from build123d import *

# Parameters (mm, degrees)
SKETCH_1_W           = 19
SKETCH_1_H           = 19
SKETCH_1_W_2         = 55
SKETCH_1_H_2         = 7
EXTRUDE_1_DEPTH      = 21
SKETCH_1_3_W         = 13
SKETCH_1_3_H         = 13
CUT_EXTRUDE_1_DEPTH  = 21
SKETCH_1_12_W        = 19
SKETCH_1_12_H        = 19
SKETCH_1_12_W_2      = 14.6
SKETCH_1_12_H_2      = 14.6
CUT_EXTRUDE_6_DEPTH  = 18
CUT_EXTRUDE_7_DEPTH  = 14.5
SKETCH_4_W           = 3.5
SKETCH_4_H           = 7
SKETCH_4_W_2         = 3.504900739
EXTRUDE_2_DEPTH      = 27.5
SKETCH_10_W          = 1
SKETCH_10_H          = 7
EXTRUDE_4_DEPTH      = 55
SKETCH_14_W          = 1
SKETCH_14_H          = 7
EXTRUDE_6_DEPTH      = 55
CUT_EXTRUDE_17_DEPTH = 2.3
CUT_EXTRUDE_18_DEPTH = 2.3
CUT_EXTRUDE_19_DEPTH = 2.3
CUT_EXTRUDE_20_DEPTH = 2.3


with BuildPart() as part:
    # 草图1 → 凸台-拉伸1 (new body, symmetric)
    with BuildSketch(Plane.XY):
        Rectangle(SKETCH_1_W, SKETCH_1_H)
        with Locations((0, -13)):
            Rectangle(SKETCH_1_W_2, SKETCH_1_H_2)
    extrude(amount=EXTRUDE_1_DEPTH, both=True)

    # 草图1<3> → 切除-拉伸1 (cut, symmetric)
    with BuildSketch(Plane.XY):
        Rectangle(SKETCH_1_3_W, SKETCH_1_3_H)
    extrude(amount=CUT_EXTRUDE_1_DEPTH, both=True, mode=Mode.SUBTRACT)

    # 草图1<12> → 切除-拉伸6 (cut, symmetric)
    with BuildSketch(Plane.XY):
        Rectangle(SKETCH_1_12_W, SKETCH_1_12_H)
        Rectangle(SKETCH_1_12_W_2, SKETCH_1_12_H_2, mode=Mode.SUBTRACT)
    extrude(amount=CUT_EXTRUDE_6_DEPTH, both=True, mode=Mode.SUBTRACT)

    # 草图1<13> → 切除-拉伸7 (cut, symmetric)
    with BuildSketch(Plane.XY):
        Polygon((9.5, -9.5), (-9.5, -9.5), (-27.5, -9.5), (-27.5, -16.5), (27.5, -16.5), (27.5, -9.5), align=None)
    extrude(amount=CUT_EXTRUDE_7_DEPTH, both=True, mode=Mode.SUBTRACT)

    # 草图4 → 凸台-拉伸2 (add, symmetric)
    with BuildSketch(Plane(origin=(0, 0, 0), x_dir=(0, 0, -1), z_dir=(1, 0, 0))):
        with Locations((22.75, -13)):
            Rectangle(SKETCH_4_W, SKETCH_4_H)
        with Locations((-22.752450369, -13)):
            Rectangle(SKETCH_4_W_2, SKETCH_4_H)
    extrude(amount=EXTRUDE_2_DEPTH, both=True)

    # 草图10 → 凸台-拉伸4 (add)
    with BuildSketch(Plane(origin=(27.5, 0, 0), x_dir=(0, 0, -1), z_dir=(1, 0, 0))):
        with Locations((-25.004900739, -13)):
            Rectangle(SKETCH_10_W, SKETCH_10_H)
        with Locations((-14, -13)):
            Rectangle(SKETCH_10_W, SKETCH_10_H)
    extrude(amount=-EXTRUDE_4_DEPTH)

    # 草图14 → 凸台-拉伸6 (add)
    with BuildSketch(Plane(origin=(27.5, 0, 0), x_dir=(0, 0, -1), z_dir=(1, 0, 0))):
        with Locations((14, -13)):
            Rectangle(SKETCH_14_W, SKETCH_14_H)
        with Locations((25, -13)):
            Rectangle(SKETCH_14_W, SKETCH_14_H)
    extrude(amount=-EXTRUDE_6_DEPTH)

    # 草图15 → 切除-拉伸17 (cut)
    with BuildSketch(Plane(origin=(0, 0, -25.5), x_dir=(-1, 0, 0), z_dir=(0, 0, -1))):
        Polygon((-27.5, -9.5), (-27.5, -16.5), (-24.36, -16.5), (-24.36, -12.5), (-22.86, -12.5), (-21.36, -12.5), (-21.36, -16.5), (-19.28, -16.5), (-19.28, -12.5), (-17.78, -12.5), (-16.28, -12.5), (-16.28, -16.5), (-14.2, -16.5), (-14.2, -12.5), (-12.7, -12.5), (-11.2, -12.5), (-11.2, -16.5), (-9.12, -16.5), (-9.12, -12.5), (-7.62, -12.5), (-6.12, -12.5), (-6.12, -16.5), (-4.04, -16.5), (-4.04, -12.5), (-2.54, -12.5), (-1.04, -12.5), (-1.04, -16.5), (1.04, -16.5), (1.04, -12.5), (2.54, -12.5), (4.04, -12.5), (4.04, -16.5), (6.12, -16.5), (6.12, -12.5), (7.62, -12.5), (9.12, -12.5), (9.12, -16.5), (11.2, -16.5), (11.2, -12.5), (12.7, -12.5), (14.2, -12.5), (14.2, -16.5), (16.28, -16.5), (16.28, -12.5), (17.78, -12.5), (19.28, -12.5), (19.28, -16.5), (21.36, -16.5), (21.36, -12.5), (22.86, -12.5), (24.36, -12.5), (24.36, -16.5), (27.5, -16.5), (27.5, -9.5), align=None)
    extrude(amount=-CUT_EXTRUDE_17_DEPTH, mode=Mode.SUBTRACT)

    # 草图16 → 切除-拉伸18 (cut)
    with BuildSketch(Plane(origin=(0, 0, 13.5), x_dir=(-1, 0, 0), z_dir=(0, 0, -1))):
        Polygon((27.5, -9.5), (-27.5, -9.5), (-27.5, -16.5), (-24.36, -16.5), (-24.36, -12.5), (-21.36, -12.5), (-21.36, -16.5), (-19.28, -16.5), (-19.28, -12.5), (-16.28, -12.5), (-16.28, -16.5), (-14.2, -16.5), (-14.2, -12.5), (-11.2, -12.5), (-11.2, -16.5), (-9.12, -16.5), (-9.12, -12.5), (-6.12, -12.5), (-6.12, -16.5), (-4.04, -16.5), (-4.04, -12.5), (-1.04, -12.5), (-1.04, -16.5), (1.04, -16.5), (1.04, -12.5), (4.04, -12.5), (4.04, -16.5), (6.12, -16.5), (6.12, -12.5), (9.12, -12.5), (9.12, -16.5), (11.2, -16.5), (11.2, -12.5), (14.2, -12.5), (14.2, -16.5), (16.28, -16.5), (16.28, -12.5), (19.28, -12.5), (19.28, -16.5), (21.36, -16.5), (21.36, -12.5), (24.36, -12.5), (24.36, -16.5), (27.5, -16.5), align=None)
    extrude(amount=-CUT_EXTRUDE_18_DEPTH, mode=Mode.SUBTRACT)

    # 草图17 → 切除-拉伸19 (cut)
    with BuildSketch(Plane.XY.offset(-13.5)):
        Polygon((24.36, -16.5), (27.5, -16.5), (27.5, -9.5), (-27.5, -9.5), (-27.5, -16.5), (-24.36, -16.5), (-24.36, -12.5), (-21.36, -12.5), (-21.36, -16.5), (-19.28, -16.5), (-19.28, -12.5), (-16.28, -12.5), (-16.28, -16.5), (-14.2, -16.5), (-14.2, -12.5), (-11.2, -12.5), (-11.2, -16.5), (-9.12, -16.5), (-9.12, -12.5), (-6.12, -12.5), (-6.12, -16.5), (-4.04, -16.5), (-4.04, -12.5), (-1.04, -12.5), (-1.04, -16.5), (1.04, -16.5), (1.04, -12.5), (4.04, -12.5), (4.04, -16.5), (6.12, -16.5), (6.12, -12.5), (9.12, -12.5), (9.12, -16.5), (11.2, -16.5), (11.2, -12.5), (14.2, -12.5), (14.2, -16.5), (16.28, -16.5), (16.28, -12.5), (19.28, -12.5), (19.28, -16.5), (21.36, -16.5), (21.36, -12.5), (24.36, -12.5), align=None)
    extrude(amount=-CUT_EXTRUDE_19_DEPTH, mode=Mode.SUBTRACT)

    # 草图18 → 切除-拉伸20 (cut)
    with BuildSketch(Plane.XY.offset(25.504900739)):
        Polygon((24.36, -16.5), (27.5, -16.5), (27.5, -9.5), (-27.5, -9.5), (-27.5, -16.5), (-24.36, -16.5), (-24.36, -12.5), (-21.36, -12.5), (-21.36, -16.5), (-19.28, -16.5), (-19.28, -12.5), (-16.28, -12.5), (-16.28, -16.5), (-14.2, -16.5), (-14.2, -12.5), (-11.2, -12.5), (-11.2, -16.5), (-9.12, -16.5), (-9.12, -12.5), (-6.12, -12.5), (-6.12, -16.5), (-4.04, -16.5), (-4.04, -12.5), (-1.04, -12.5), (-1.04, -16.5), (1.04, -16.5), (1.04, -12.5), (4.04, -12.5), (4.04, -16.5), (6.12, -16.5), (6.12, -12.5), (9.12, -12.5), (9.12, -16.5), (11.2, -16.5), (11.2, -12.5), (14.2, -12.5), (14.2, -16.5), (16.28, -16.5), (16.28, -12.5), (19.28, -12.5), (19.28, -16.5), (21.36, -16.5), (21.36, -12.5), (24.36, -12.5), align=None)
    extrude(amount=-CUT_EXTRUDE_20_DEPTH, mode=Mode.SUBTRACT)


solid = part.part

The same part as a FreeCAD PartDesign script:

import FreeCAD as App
import Part
import Sketcher
Q = App.Units.Quantity


def add_polygon(sketch, points):
    """Adds a closed chain of lines whose ends are joined by coincident constraints."""
    first, n = sketch.GeometryCount, len(points)
    for a, b in zip(points, points[1:] + points[:1]):
        sketch.addGeometry(Part.LineSegment(App.Vector(*a, 0), App.Vector(*b, 0)), False)
    for i in range(n):
        sketch.addConstraint(Sketcher.Constraint("Coincident", first + i, 2, first + (i + 1) % n, 1))

doc = App.newDocument("Part")
body = doc.addObject("PartDesign::Body", "Body")

# Sketch on XY plane
sketch1 = body.newObject("Sketcher::SketchObject", "Sketch")
sketch1.AttachmentSupport = (doc.getObject("XY_Plane"), [""])
sketch1.MapMode = "FlatFace"
add_polygon(sketch1, [(-10, 10), (-10, -10), (-28, -10), (-28, -16), (28, -16), (28, -10), (10, -10), (10, 10)])  # lines 0-7
sketch1.addConstraint(Sketcher.Constraint("Vertical", 0))
sketch1.addConstraint(Sketcher.Constraint("Horizontal", 1))
sketch1.addConstraint(Sketcher.Constraint("Vertical", 2))
sketch1.addConstraint(Sketcher.Constraint("Horizontal", 3))
sketch1.addConstraint(Sketcher.Constraint("Vertical", 4))
sketch1.addConstraint(Sketcher.Constraint("Horizontal", 5))
sketch1.addConstraint(Sketcher.Constraint("Vertical", 6))
sketch1.addConstraint(Sketcher.Constraint("Horizontal", 7))
sketch1.addConstraint(Sketcher.Constraint("Symmetric", 0, 2, 6, 2, -1, 1))
sketch1.addConstraint(Sketcher.Constraint("Symmetric", 1, 2, 4, 2, -2))
sketch1.addConstraint(Sketcher.Constraint("Equal", 7, 0))
sketch1.addConstraint(Sketcher.Constraint("DistanceX", 1, 2, 1, 1, Q("18 mm")))
sketch1.addConstraint(Sketcher.Constraint("DistanceX", 3, 1, 3, 2, Q("55 mm")))
sketch1.addConstraint(Sketcher.Constraint("DistanceY", 2, 2, 2, 1, Q("7 mm")))
pad1 = body.newObject("PartDesign::Pad", "Pad")
pad1.Profile = sketch1
pad1.Length = 42
pad1.Midplane = True

# Sketch on XY plane
sketch2 = body.newObject("Sketcher::SketchObject", "Sketch001")
sketch2.AttachmentSupport = (doc.getObject("XY_Plane"), [""])
sketch2.MapMode = "FlatFace"
add_polygon(sketch2, [(-6, 6), (-6, -6), (6, -6), (6, 6)])  # lines 0-3
sketch2.addConstraint(Sketcher.Constraint("Vertical", 0))
sketch2.addConstraint(Sketcher.Constraint("Horizontal", 1))
sketch2.addConstraint(Sketcher.Constraint("Vertical", 2))
sketch2.addConstraint(Sketcher.Constraint("Horizontal", 3))
sketch2.addConstraint(Sketcher.Constraint("Symmetric", 0, 2, 2, 2, -1, 1))
sketch2.addConstraint(Sketcher.Constraint("Equal", 3, 0))
sketch2.addConstraint(Sketcher.Constraint("DistanceX", 1, 1, 1, 2, Q("13 mm")))
pocket1 = body.newObject("PartDesign::Pocket", "Pocket")
pocket1.Profile = sketch2
pocket1.Length = 42
pocket1.Midplane = True

# Sketch on XY plane
sketch3 = body.newObject("Sketcher::SketchObject", "Sketch002")
sketch3.AttachmentSupport = (doc.getObject("XY_Plane"), [""])
sketch3.MapMode = "FlatFace"
add_polygon(sketch3, [(-10, 10), (-10, -10), (10, -10), (10, 10)])  # lines 0-3
add_polygon(sketch3, [(7, -7), (-7, -7), (-7, 7), (7, 7)])  # lines 4-7
sketch3.addConstraint(Sketcher.Constraint("Vertical", 0))
sketch3.addConstraint(Sketcher.Constraint("Horizontal", 1))
sketch3.addConstraint(Sketcher.Constraint("Vertical", 2))
sketch3.addConstraint(Sketcher.Constraint("Horizontal", 3))
sketch3.addConstraint(Sketcher.Constraint("Horizontal", 4))
sketch3.addConstraint(Sketcher.Constraint("Vertical", 5))
sketch3.addConstraint(Sketcher.Constraint("Horizontal", 6))
sketch3.addConstraint(Sketcher.Constraint("Vertical", 7))
sketch3.addConstraint(Sketcher.Constraint("Symmetric", 0, 2, 2, 2, -1, 1))
sketch3.addConstraint(Sketcher.Constraint("Symmetric", 4, 2, 6, 2, -1, 1))
sketch3.addConstraint(Sketcher.Constraint("Equal", 3, 0))
sketch3.addConstraint(Sketcher.Constraint("Equal", 6, 5))
sketch3.addConstraint(Sketcher.Constraint("DistanceX", 1, 1, 1, 2, Q("19 mm")))
sketch3.addConstraint(Sketcher.Constraint("DistanceX", 4, 2, 4, 1, Q("14.6 mm")))
pocket2 = body.newObject("PartDesign::Pocket", "Pocket001")
pocket2.Profile = sketch3
pocket2.Length = 36
pocket2.Midplane = True

# Sketch on XY plane
sketch4 = body.newObject("Sketcher::SketchObject", "Sketch003")
sketch4.AttachmentSupport = (doc.getObject("XY_Plane"), [""])
sketch4.MapMode = "FlatFace"
add_polygon(sketch4, [(-28, -10), (-28, -16), (28, -16), (28, -10)])  # lines 0-3
sketch4.addConstraint(Sketcher.Constraint("Vertical", 0))
sketch4.addConstraint(Sketcher.Constraint("Horizontal", 1))
sketch4.addConstraint(Sketcher.Constraint("Vertical", 2))
sketch4.addConstraint(Sketcher.Constraint("Horizontal", 3))
sketch4.addConstraint(Sketcher.Constraint("DistanceX", 1, 1, 1, 2, Q("55 mm")))
sketch4.addConstraint(Sketcher.Constraint("DistanceY", 0, 2, 0, 1, Q("7 mm")))
sketch4.addConstraint(Sketcher.Constraint("DistanceX", 0, 2, -1, 1, Q("27.5 mm")))
sketch4.addConstraint(Sketcher.Constraint("DistanceY", 0, 2, -1, 1, Q("16.5 mm")))
pocket3 = body.newObject("PartDesign::Pocket", "Pocket002")
pocket3.Profile = sketch4
pocket3.Length = 29
pocket3.Midplane = True

# Sketch on YZ plane
sketch5 = body.newObject("Sketcher::SketchObject", "Sketch004")
sketch5.AttachmentSupport = (doc.getObject("YZ_Plane"), [""])
sketch5.MapMode = "FlatFace"
add_polygon(sketch5, [(-9.5, -21), (-16.5, -21), (-16.5, -24.5), (-9.5, -24.5)])  # lines 0-3
add_polygon(sketch5, [(-9.5, 24.5), (-16.5, 24.5), (-16.5, 21), (-9.5, 21)])  # lines 4-7
sketch5.addConstraint(Sketcher.Constraint("Horizontal", 0))
sketch5.addConstraint(Sketcher.Constraint("Vertical", 1))
sketch5.addConstraint(Sketcher.Constraint("Horizontal", 2))
sketch5.addConstraint(Sketcher.Constraint("Vertical", 3))
sketch5.addConstraint(Sketcher.Constraint("Horizontal", 4))
sketch5.addConstraint(Sketcher.Constraint("Vertical", 5))
sketch5.addConstraint(Sketcher.Constraint("Horizontal", 6))
sketch5.addConstraint(Sketcher.Constraint("Vertical", 7))
sketch5.addConstraint(Sketcher.Constraint("Symmetric", 0, 2, 5, 2, -1))
sketch5.addConstraint(Sketcher.Constraint("Vertical", 3, 2, 6, 2))
sketch5.addConstraint(Sketcher.Constraint("DistanceX", 0, 2, 0, 1, Q("7 mm")))
sketch5.addConstraint(Sketcher.Constraint("DistanceY", 1, 2, 1, 1, Q("3.5 mm")))
sketch5.addConstraint(Sketcher.Constraint("DistanceY", 0, 2, -1, 1, Q("21 mm")))
sketch5.addConstraint(Sketcher.Constraint("DistanceX", 0, 2, -1, 1, Q("16.5 mm")))
sketch5.addConstraint(Sketcher.Constraint("DistanceY", 5, 2, 5, 1, Q("3.504901 mm")))
pad2 = body.newObject("PartDesign::Pad", "Pad001")
pad2.Profile = sketch5
pad2.Length = 55
pad2.Midplane = True

# Sketch on YZ plane
sketch6 = body.newObject("Sketcher::SketchObject", "Sketch005")
sketch6.AttachmentSupport = (doc.getObject("YZ_Plane"), [""])
sketch6.MapMode = "FlatFace"
sketch6.AttachmentOffset = App.Placement(App.Vector(0, 0, 27.5), App.Rotation())
add_polygon(sketch6, [(-9.5, 25.5), (-16.5, 25.5), (-16.5, 24.5), (-9.5, 24.5)])  # lines 0-3
add_polygon(sketch6, [(-9.5, 14.5), (-16.5, 14.5), (-16.5, 13.5), (-9.5, 13.5)])  # lines 4-7
sketch6.addConstraint(Sketcher.Constraint("Horizontal", 0))
sketch6.addConstraint(Sketcher.Constraint("Vertical", 1))
sketch6.addConstraint(Sketcher.Constraint("Horizontal", 2))
sketch6.addConstraint(Sketcher.Constraint("Vertical", 3))
sketch6.addConstraint(Sketcher.Constraint("Horizontal", 4))
sketch6.addConstraint(Sketcher.Constraint("Vertical", 5))
sketch6.addConstraint(Sketcher.Constraint("Horizontal", 6))
sketch6.addConstraint(Sketcher.Constraint("Vertical", 7))
sketch6.addConstraint(Sketcher.Constraint("Vertical", 1, 2, 4, 2))
sketch6.addConstraint(Sketcher.Constraint("Vertical", 3, 2, 6, 2))
sketch6.addConstraint(Sketcher.Constraint("Equal", 3, 5))
sketch6.addConstraint(Sketcher.Constraint("DistanceX", 0, 2, 0, 1, Q("7 mm")))
sketch6.addConstraint(Sketcher.Constraint("DistanceY", 1, 2, 1, 1, Q("1 mm")))
sketch6.addConstraint(Sketcher.Constraint("DistanceX", 0, 2, -1, 1, Q("16.5 mm")))
sketch6.addConstraint(Sketcher.Constraint("DistanceY", -1, 1, 4, 2, Q("14.5 mm")))
sketch6.addConstraint(Sketcher.Constraint("DistanceY", -1, 1, 0, 2, Q("25.504901 mm")))
pad3 = body.newObject("PartDesign::Pad", "Pad002")
pad3.Profile = sketch6
pad3.Length = 55
pad3.Reversed = True

# Sketch on YZ plane
sketch7 = body.newObject("Sketcher::SketchObject", "Sketch006")
sketch7.AttachmentSupport = (doc.getObject("YZ_Plane"), [""])
sketch7.MapMode = "FlatFace"
sketch7.AttachmentOffset = App.Placement(App.Vector(0, 0, 27.5), App.Rotation())
add_polygon(sketch7, [(-9.5, -13.5), (-16.5, -13.5), (-16.5, -14.5), (-9.5, -14.5)])  # lines 0-3
add_polygon(sketch7, [(-9.5, -24.5), (-16.5, -24.5), (-16.5, -25.5), (-9.5, -25.5)])  # lines 4-7
sketch7.addConstraint(Sketcher.Constraint("Horizontal", 0))
sketch7.addConstraint(Sketcher.Constraint("Vertical", 1))
sketch7.addConstraint(Sketcher.Constraint("Horizontal", 2))
sketch7.addConstraint(Sketcher.Constraint("Vertical", 3))
sketch7.addConstraint(Sketcher.Constraint("Horizontal", 4))
sketch7.addConstraint(Sketcher.Constraint("Vertical", 5))
sketch7.addConstraint(Sketcher.Constraint("Horizontal", 6))
sketch7.addConstraint(Sketcher.Constraint("Vertical", 7))
sketch7.addConstraint(Sketcher.Constraint("Vertical", 1, 2, 4, 2))
sketch7.addConstraint(Sketcher.Constraint("Vertical", 3, 2, 6, 2))
sketch7.addConstraint(Sketcher.Constraint("Equal", 3, 5))
sketch7.addConstraint(Sketcher.Constraint("DistanceX", 0, 2, 0, 1, Q("7 mm")))
sketch7.addConstraint(Sketcher.Constraint("DistanceY", 1, 2, 1, 1, Q("1 mm")))
sketch7.addConstraint(Sketcher.Constraint("DistanceY", 4, 2, 1, 2, Q("10 mm")))
sketch7.addConstraint(Sketcher.Constraint("DistanceX", 0, 2, -1, 1, Q("16.5 mm")))
sketch7.addConstraint(Sketcher.Constraint("DistanceY", 0, 2, -1, 1, Q("13.5 mm")))
pad4 = body.newObject("PartDesign::Pad", "Pad003")
pad4.Profile = sketch7
pad4.Length = 55
pad4.Reversed = True

# Sketch on XY plane
sketch8 = body.newObject("Sketcher::SketchObject", "Sketch007")
sketch8.AttachmentSupport = (doc.getObject("XY_Plane"), [""])
sketch8.MapMode = "FlatFace"
sketch8.AttachmentOffset = App.Placement(App.Vector(0, 0, -25.5), App.Rotation())
add_polygon(sketch8, [(27.5, -9.5), (27.5, -16.5), (24.4, -16.5), (24.4, -12.5), (21.4, -12.5), (21.4, -16.5), (19.3, -16.5), (19.3, -12.5), (16.3, -12.5), (16.3, -16.5), (14.2, -16.5), (14.2, -12.5), (11.2, -12.5), (11.2, -16.5), (9.1, -16.5), (9.1, -12.5), (6.1, -12.5), (6.1, -16.5), (4, -16.5), (4, -12.5), (1, -12.5), (1, -16.5), (-1, -16.5), (-1, -12.5), (-4, -12.5), (-4, -16.5), (-6.1, -16.5), (-6.1, -12.5), (-9.1, -12.5), (-9.1, -16.5), (-11.2, -16.5), (-11.2, -12.5), (-14.2, -12.5), (-14.2, -16.5), (-16.3, -16.5), (-16.3, -12.5), (-19.3, -12.5), (-19.3, -16.5), (-21.4, -16.5), (-21.4, -12.5), (-24.4, -12.5), (-24.4, -16.5), (-27.5, -16.5), (-27.5, -9.5)])  # lines 0-43
sketch8.addConstraint(Sketcher.Constraint("Vertical", 0))
sketch8.addConstraint(Sketcher.Constraint("Horizontal", 1))
sketch8.addConstraint(Sketcher.Constraint("Vertical", 2))
sketch8.addConstraint(Sketcher.Constraint("Horizontal", 3))
sketch8.addConstraint(Sketcher.Constraint("Vertical", 4))
sketch8.addConstraint(Sketcher.Constraint("Horizontal", 5))
sketch8.addConstraint(Sketcher.Constraint("Vertical", 6))
sketch8.addConstraint(Sketcher.Constraint("Horizontal", 7))
sketch8.addConstraint(Sketcher.Constraint("Vertical", 8))
sketch8.addConstraint(Sketcher.Constraint("Horizontal", 9))
sketch8.addConstraint(Sketcher.Constraint("Vertical", 10))
sketch8.addConstraint(Sketcher.Constraint("Horizontal", 11))
sketch8.addConstraint(Sketcher.Constraint("Vertical", 12))
sketch8.addConstraint(Sketcher.Constraint("Horizontal", 13))
sketch8.addConstraint(Sketcher.Constraint("Vertical", 14))
sketch8.addConstraint(Sketcher.Constraint("Horizontal", 15))
sketch8.addConstraint(Sketcher.Constraint("Vertical", 16))
sketch8.addConstraint(Sketcher.Constraint("Horizontal", 17))
sketch8.addConstraint(Sketcher.Constraint("Vertical", 18))
sketch8.addConstraint(Sketcher.Constraint("Horizontal", 19))
sketch8.addConstraint(Sketcher.Constraint("Vertical", 20))
sketch8.addConstraint(Sketcher.Constraint("Horizontal", 21))
sketch8.addConstraint(Sketcher.Constraint("Vertical", 22))
sketch8.addConstraint(Sketcher.Constraint("Horizontal", 23))
sketch8.addConstraint(Sketcher.Constraint("Vertical", 24))
sketch8.addConstraint(Sketcher.Constraint("Horizontal", 25))
sketch8.addConstraint(Sketcher.Constraint("Vertical", 26))
sketch8.addConstraint(Sketcher.Constraint("Horizontal", 27))
sketch8.addConstraint(Sketcher.Constraint("Vertical", 28))
sketch8.addConstraint(Sketcher.Constraint("Horizontal", 29))
sketch8.addConstraint(Sketcher.Constraint("Vertical", 30))
sketch8.addConstraint(Sketcher.Constraint("Horizontal", 31))
sketch8.addConstraint(Sketcher.Constraint("Vertical", 32))
sketch8.addConstraint(Sketcher.Constraint("Horizontal", 33))
sketch8.addConstraint(Sketcher.Constraint("Vertical", 34))
sketch8.addConstraint(Sketcher.Constraint("Horizontal", 35))
sketch8.addConstraint(Sketcher.Constraint("Vertical", 36))
sketch8.addConstraint(Sketcher.Constraint("Horizontal", 37))
sketch8.addConstraint(Sketcher.Constraint("Vertical", 38))
sketch8.addConstraint(Sketcher.Constraint("Horizontal", 39))
sketch8.addConstraint(Sketcher.Constraint("Vertical", 40))
sketch8.addConstraint(Sketcher.Constraint("Horizontal", 41))
sketch8.addConstraint(Sketcher.Constraint("Vertical", 42))
sketch8.addConstraint(Sketcher.Constraint("Horizontal", 43))
sketch8.addConstraint(Sketcher.Constraint("Symmetric", 19, 2, 22, 2, -2))
sketch8.addConstraint(Sketcher.Constraint("Symmetric", 17, 2, 24, 2, -2))
sketch8.addConstraint(Sketcher.Constraint("Symmetric", 15, 2, 26, 2, -2))
sketch8.addConstraint(Sketcher.Constraint("Symmetric", 13, 2, 28, 2, -2))
sketch8.addConstraint(Sketcher.Constraint("Symmetric", 11, 2, 30, 2, -2))
sketch8.addConstraint(Sketcher.Constraint("Symmetric", 9, 2, 32, 2, -2))
sketch8.addConstraint(Sketcher.Constraint("Symmetric", 7, 2, 34, 2, -2))
sketch8.addConstraint(Sketcher.Constraint("Symmetric", 5, 2, 36, 2, -2))
sketch8.addConstraint(Sketcher.Constraint("Symmetric", 3, 2, 38, 2, -2))
sketch8.addConstraint(Sketcher.Constraint("Symmetric", 1, 2, 40, 2, -2))
sketch8.addConstraint(Sketcher.Constraint("Horizontal", 1, 2, 4, 2))
sketch8.addConstraint(Sketcher.Constraint("Horizontal", 3, 2, 6, 2))
sketch8.addConstraint(Sketcher.Constraint("Horizontal", 5, 2, 8, 2))
sketch8.addConstraint(Sketcher.Constraint("Horizontal", 7, 2, 10, 2))
sketch8.addConstraint(Sketcher.Constraint("Horizontal", 9, 2, 12, 2))
sketch8.addConstraint(Sketcher.Constraint("Horizontal", 11, 2, 14, 2))
sketch8.addConstraint(Sketcher.Constraint("Horizontal", 13, 2, 16, 2))
sketch8.addConstraint(Sketcher.Constraint("Horizontal", 15, 2, 18, 2))
sketch8.addConstraint(Sketcher.Constraint("Horizontal", 17, 2, 20, 2))
sketch8.addConstraint(Sketcher.Constraint("Equal", 3, 7))
sketch8.addConstraint(Sketcher.Constraint("Equal", 5, 9))
sketch8.addConstraint(Sketcher.Constraint("Equal", 7, 11))
sketch8.addConstraint(Sketcher.Constraint("Equal", 9, 13))
sketch8.addConstraint(Sketcher.Constraint("Equal", 11, 15))
sketch8.addConstraint(Sketcher.Constraint("Equal", 13, 17))
sketch8.addConstraint(Sketcher.Constraint("Equal", 15, 19))
sketch8.addConstraint(Sketcher.Constraint("Equal", 17, 21))
sketch8.addConstraint(Sketcher.Constraint("Equal", 1, 41))
sketch8.addConstraint(Sketcher.Constraint("DistanceX", 3, 2, 3, 1, Q("3 mm")))
sketch8.addConstraint(Sketcher.Constraint("DistanceX", 43, 1, 43, 2, Q("55 mm")))
sketch8.addConstraint(Sketcher.Constraint("DistanceY", 0, 2, 0, 1, Q("7 mm")))
sketch8.addConstraint(Sketcher.Constraint("DistanceY", 2, 1, 2, 2, Q("4 mm")))
sketch8.addConstraint(Sketcher.Constraint("DistanceX", 1, 2, 1, 1, Q("3.14 mm")))
sketch8.addConstraint(Sketcher.Constraint("DistanceY", 0, 2, -1, 1, Q("16.5 mm")))
pocket4 = body.newObject("PartDesign::Pocket", "Pocket003")
pocket4.Profile = sketch8
pocket4.Length = 2.3
pocket4.Reversed = True

# Sketch on XY plane
sketch9 = body.newObject("Sketcher::SketchObject", "Sketch008")
sketch9.AttachmentSupport = (doc.getObject("XY_Plane"), [""])
sketch9.MapMode = "FlatFace"
sketch9.AttachmentOffset = App.Placement(App.Vector(0, 0, 13.5), App.Rotation())
add_polygon(sketch9, [(-27.5, -9.5), (27.5, -9.5), (27.5, -16.5), (24.4, -16.5), (24.4, -12.5), (21.4, -12.5), (21.4, -16.5), (19.3, -16.5), (19.3, -12.5), (16.3, -12.5), (16.3, -16.5), (14.2, -16.5), (14.2, -12.5), (11.2, -12.5), (11.2, -16.5), (9.1, -16.5), (9.1, -12.5), (6.1, -12.5), (6.1, -16.5), (4, -16.5), (4, -12.5), (1, -12.5), (1, -16.5), (-1, -16.5), (-1, -12.5), (-4, -12.5), (-4, -16.5), (-6.1, -16.5), (-6.1, -12.5), (-9.1, -12.5), (-9.1, -16.5), (-11.2, -16.5), (-11.2, -12.5), (-14.2, -12.5), (-14.2, -16.5), (-16.3, -16.5), (-16.3, -12.5), (-19.3, -12.5), (-19.3, -16.5), (-21.4, -16.5), (-21.4, -12.5), (-24.4, -12.5), (-24.4, -16.5), (-27.5, -16.5)])  # lines 0-43
sketch9.addConstraint(Sketcher.Constraint("Horizontal", 0))
sketch9.addConstraint(Sketcher.Constraint("Vertical", 1))
sketch9.addConstraint(Sketcher.Constraint("Horizontal", 2))
sketch9.addConstraint(Sketcher.Constraint("Vertical", 3))
sketch9.addConstraint(Sketcher.Constraint("Horizontal", 4))
sketch9.addConstraint(Sketcher.Constraint("Vertical", 5))
sketch9.addConstraint(Sketcher.Constraint("Horizontal", 6))
sketch9.addConstraint(Sketcher.Constraint("Vertical", 7))
sketch9.addConstraint(Sketcher.Constraint("Horizontal", 8))
sketch9.addConstraint(Sketcher.Constraint("Vertical", 9))
sketch9.addConstraint(Sketcher.Constraint("Horizontal", 10))
sketch9.addConstraint(Sketcher.Constraint("Vertical", 11))
sketch9.addConstraint(Sketcher.Constraint("Horizontal", 12))
sketch9.addConstraint(Sketcher.Constraint("Vertical", 13))
sketch9.addConstraint(Sketcher.Constraint("Horizontal", 14))
sketch9.addConstraint(Sketcher.Constraint("Vertical", 15))
sketch9.addConstraint(Sketcher.Constraint("Horizontal", 16))
sketch9.addConstraint(Sketcher.Constraint("Vertical", 17))
sketch9.addConstraint(Sketcher.Constraint("Horizontal", 18))
sketch9.addConstraint(Sketcher.Constraint("Vertical", 19))
sketch9.addConstraint(Sketcher.Constraint("Horizontal", 20))
sketch9.addConstraint(Sketcher.Constraint("Vertical", 21))
sketch9.addConstraint(Sketcher.Constraint("Horizontal", 22))
sketch9.addConstraint(Sketcher.Constraint("Vertical", 23))
sketch9.addConstraint(Sketcher.Constraint("Horizontal", 24))
sketch9.addConstraint(Sketcher.Constraint("Vertical", 25))
sketch9.addConstraint(Sketcher.Constraint("Horizontal", 26))
sketch9.addConstraint(Sketcher.Constraint("Vertical", 27))
sketch9.addConstraint(Sketcher.Constraint("Horizontal", 28))
sketch9.addConstraint(Sketcher.Constraint("Vertical", 29))
sketch9.addConstraint(Sketcher.Constraint("Horizontal", 30))
sketch9.addConstraint(Sketcher.Constraint("Vertical", 31))
sketch9.addConstraint(Sketcher.Constraint("Horizontal", 32))
sketch9.addConstraint(Sketcher.Constraint("Vertical", 33))
sketch9.addConstraint(Sketcher.Constraint("Horizontal", 34))
sketch9.addConstraint(Sketcher.Constraint("Vertical", 35))
sketch9.addConstraint(Sketcher.Constraint("Horizontal", 36))
sketch9.addConstraint(Sketcher.Constraint("Vertical", 37))
sketch9.addConstraint(Sketcher.Constraint("Horizontal", 38))
sketch9.addConstraint(Sketcher.Constraint("Vertical", 39))
sketch9.addConstraint(Sketcher.Constraint("Horizontal", 40))
sketch9.addConstraint(Sketcher.Constraint("Vertical", 41))
sketch9.addConstraint(Sketcher.Constraint("Horizontal", 42))
sketch9.addConstraint(Sketcher.Constraint("Vertical", 43))
sketch9.addConstraint(Sketcher.Constraint("Symmetric", 20, 2, 23, 2, -2))
sketch9.addConstraint(Sketcher.Constraint("Symmetric", 18, 2, 25, 2, -2))
sketch9.addConstraint(Sketcher.Constraint("Symmetric", 16, 2, 27, 2, -2))
sketch9.addConstraint(Sketcher.Constraint("Symmetric", 14, 2, 29, 2, -2))
sketch9.addConstraint(Sketcher.Constraint("Symmetric", 12, 2, 31, 2, -2))
sketch9.addConstraint(Sketcher.Constraint("Symmetric", 10, 2, 33, 2, -2))
sketch9.addConstraint(Sketcher.Constraint("Symmetric", 8, 2, 35, 2, -2))
sketch9.addConstraint(Sketcher.Constraint("Symmetric", 6, 2, 37, 2, -2))
sketch9.addConstraint(Sketcher.Constraint("Symmetric", 4, 2, 39, 2, -2))
sketch9.addConstraint(Sketcher.Constraint("Symmetric", 2, 2, 41, 2, -2))
sketch9.addConstraint(Sketcher.Constraint("Horizontal", 2, 2, 5, 2))
sketch9.addConstraint(Sketcher.Constraint("Horizontal", 4, 2, 7, 2))
sketch9.addConstraint(Sketcher.Constraint("Horizontal", 6, 2, 9, 2))
sketch9.addConstraint(Sketcher.Constraint("Horizontal", 8, 2, 11, 2))
sketch9.addConstraint(Sketcher.Constraint("Horizontal", 10, 2, 13, 2))
sketch9.addConstraint(Sketcher.Constraint("Horizontal", 12, 2, 15, 2))
sketch9.addConstraint(Sketcher.Constraint("Horizontal", 14, 2, 17, 2))
sketch9.addConstraint(Sketcher.Constraint("Horizontal", 16, 2, 19, 2))
sketch9.addConstraint(Sketcher.Constraint("Horizontal", 18, 2, 21, 2))
sketch9.addConstraint(Sketcher.Constraint("Equal", 4, 8))
sketch9.addConstraint(Sketcher.Constraint("Equal", 6, 10))
sketch9.addConstraint(Sketcher.Constraint("Equal", 8, 12))
sketch9.addConstraint(Sketcher.Constraint("Equal", 10, 14))
sketch9.addConstraint(Sketcher.Constraint("Equal", 12, 16))
sketch9.addConstraint(Sketcher.Constraint("Equal", 14, 18))
sketch9.addConstraint(Sketcher.Constraint("Equal", 16, 20))
sketch9.addConstraint(Sketcher.Constraint("Equal", 18, 22))
sketch9.addConstraint(Sketcher.Constraint("Equal", 2, 42))
sketch9.addConstraint(Sketcher.Constraint("DistanceX", 0, 1, 0, 2, Q("55 mm")))
sketch9.addConstraint(Sketcher.Constraint("DistanceX", 4, 2, 4, 1, Q("3 mm")))
sketch9.addConstraint(Sketcher.Constraint("DistanceY", 1, 2, 1, 1, Q("7 mm")))
sketch9.addConstraint(Sketcher.Constraint("DistanceY", 3, 1, 3, 2, Q("4 mm")))
sketch9.addConstraint(Sketcher.Constraint("DistanceX", 2, 2, 2, 1, Q("3.14 mm")))
sketch9.addConstraint(Sketcher.Constraint("DistanceY", 0, 2, -1, 1, Q("9.5 mm")))
pocket5 = body.newObject("PartDesign::Pocket", "Pocket004")
pocket5.Profile = sketch9
pocket5.Length = 2.3
pocket5.Reversed = True

# Sketch on XY plane
sketch10 = body.newObject("Sketcher::SketchObject", "Sketch009")
sketch10.AttachmentSupport = (doc.getObject("XY_Plane"), [""])
sketch10.MapMode = "FlatFace"
sketch10.AttachmentOffset = App.Placement(App.Vector(0, 0, -13.5), App.Rotation())
add_polygon(sketch10, [(24.4, -16.5), (27.5, -16.5), (27.5, -9.5), (-27.5, -9.5), (-27.5, -16.5), (-24.4, -16.5), (-24.4, -12.5), (-21.4, -12.5), (-21.4, -16.5), (-19.3, -16.5), (-19.3, -12.5), (-16.3, -12.5), (-16.3, -16.5), (-14.2, -16.5), (-14.2, -12.5), (-11.2, -12.5), (-11.2, -16.5), (-9.1, -16.5), (-9.1, -12.5), (-6.1, -12.5), (-6.1, -16.5), (-4, -16.5), (-4, -12.5), (-1, -12.5), (-1, -16.5), (1, -16.5), (1, -12.5), (4, -12.5), (4, -16.5), (6.1, -16.5), (6.1, -12.5), (9.1, -12.5), (9.1, -16.5), (11.2, -16.5), (11.2, -12.5), (14.2, -12.5), (14.2, -16.5), (16.3, -16.5), (16.3, -12.5), (19.3, -12.5), (19.3, -16.5), (21.4, -16.5), (21.4, -12.5), (24.4, -12.5)])  # lines 0-43
sketch10.addConstraint(Sketcher.Constraint("Horizontal", 0))
sketch10.addConstraint(Sketcher.Constraint("Vertical", 1))
sketch10.addConstraint(Sketcher.Constraint("Horizontal", 2))
sketch10.addConstraint(Sketcher.Constraint("Vertical", 3))
sketch10.addConstraint(Sketcher.Constraint("Horizontal", 4))
sketch10.addConstraint(Sketcher.Constraint("Vertical", 5))
sketch10.addConstraint(Sketcher.Constraint("Horizontal", 6))
sketch10.addConstraint(Sketcher.Constraint("Vertical", 7))
sketch10.addConstraint(Sketcher.Constraint("Horizontal", 8))
sketch10.addConstraint(Sketcher.Constraint("Vertical", 9))
sketch10.addConstraint(Sketcher.Constraint("Horizontal", 10))
sketch10.addConstraint(Sketcher.Constraint("Vertical", 11))
sketch10.addConstraint(Sketcher.Constraint("Horizontal", 12))
sketch10.addConstraint(Sketcher.Constraint("Vertical", 13))
sketch10.addConstraint(Sketcher.Constraint("Horizontal", 14))
sketch10.addConstraint(Sketcher.Constraint("Vertical", 15))
sketch10.addConstraint(Sketcher.Constraint("Horizontal", 16))
sketch10.addConstraint(Sketcher.Constraint("Vertical", 17))
sketch10.addConstraint(Sketcher.Constraint("Horizontal", 18))
sketch10.addConstraint(Sketcher.Constraint("Vertical", 19))
sketch10.addConstraint(Sketcher.Constraint("Horizontal", 20))
sketch10.addConstraint(Sketcher.Constraint("Vertical", 21))
sketch10.addConstraint(Sketcher.Constraint("Horizontal", 22))
sketch10.addConstraint(Sketcher.Constraint("Vertical", 23))
sketch10.addConstraint(Sketcher.Constraint("Horizontal", 24))
sketch10.addConstraint(Sketcher.Constraint("Vertical", 25))
sketch10.addConstraint(Sketcher.Constraint("Horizontal", 26))
sketch10.addConstraint(Sketcher.Constraint("Vertical", 27))
sketch10.addConstraint(Sketcher.Constraint("Horizontal", 28))
sketch10.addConstraint(Sketcher.Constraint("Vertical", 29))
sketch10.addConstraint(Sketcher.Constraint("Horizontal", 30))
sketch10.addConstraint(Sketcher.Constraint("Vertical", 31))
sketch10.addConstraint(Sketcher.Constraint("Horizontal", 32))
sketch10.addConstraint(Sketcher.Constraint("Vertical", 33))
sketch10.addConstraint(Sketcher.Constraint("Horizontal", 34))
sketch10.addConstraint(Sketcher.Constraint("Vertical", 35))
sketch10.addConstraint(Sketcher.Constraint("Horizontal", 36))
sketch10.addConstraint(Sketcher.Constraint("Vertical", 37))
sketch10.addConstraint(Sketcher.Constraint("Horizontal", 38))
sketch10.addConstraint(Sketcher.Constraint("Vertical", 39))
sketch10.addConstraint(Sketcher.Constraint("Horizontal", 40))
sketch10.addConstraint(Sketcher.Constraint("Vertical", 41))
sketch10.addConstraint(Sketcher.Constraint("Horizontal", 42))
sketch10.addConstraint(Sketcher.Constraint("Vertical", 43))
sketch10.addConstraint(Sketcher.Constraint("Symmetric", 0, 2, 3, 2, -2))
sketch10.addConstraint(Sketcher.Constraint("Symmetric", 22, 2, 25, 2, -2))
sketch10.addConstraint(Sketcher.Constraint("Symmetric", 20, 2, 27, 2, -2))
sketch10.addConstraint(Sketcher.Constraint("Symmetric", 18, 2, 29, 2, -2))
sketch10.addConstraint(Sketcher.Constraint("Symmetric", 16, 2, 31, 2, -2))
sketch10.addConstraint(Sketcher.Constraint("Symmetric", 14, 2, 33, 2, -2))
sketch10.addConstraint(Sketcher.Constraint("Symmetric", 12, 2, 35, 2, -2))
sketch10.addConstraint(Sketcher.Constraint("Symmetric", 10, 2, 37, 2, -2))
sketch10.addConstraint(Sketcher.Constraint("Symmetric", 8, 2, 39, 2, -2))
sketch10.addConstraint(Sketcher.Constraint("Symmetric", 6, 2, 41, 2, -2))
sketch10.addConstraint(Sketcher.Constraint("Horizontal", 4, 2, 7, 2))
sketch10.addConstraint(Sketcher.Constraint("Horizontal", 6, 2, 9, 2))
sketch10.addConstraint(Sketcher.Constraint("Horizontal", 8, 2, 11, 2))
sketch10.addConstraint(Sketcher.Constraint("Horizontal", 10, 2, 13, 2))
sketch10.addConstraint(Sketcher.Constraint("Horizontal", 12, 2, 15, 2))
sketch10.addConstraint(Sketcher.Constraint("Horizontal", 14, 2, 17, 2))
sketch10.addConstraint(Sketcher.Constraint("Horizontal", 16, 2, 19, 2))
sketch10.addConstraint(Sketcher.Constraint("Horizontal", 18, 2, 21, 2))
sketch10.addConstraint(Sketcher.Constraint("Horizontal", 20, 2, 23, 2))
sketch10.addConstraint(Sketcher.Constraint("Equal", 0, 4))
sketch10.addConstraint(Sketcher.Constraint("Equal", 6, 10))
sketch10.addConstraint(Sketcher.Constraint("Equal", 8, 12))
sketch10.addConstraint(Sketcher.Constraint("Equal", 10, 14))
sketch10.addConstraint(Sketcher.Constraint("Equal", 12, 16))
sketch10.addConstraint(Sketcher.Constraint("Equal", 14, 18))
sketch10.addConstraint(Sketcher.Constraint("Equal", 16, 20))
sketch10.addConstraint(Sketcher.Constraint("Equal", 18, 22))
sketch10.addConstraint(Sketcher.Constraint("Equal", 20, 24))
sketch10.addConstraint(Sketcher.Constraint("DistanceX", 2, 2, 2, 1, Q("55 mm")))
sketch10.addConstraint(Sketcher.Constraint("DistanceX", 6, 1, 6, 2, Q("3 mm")))
sketch10.addConstraint(Sketcher.Constraint("DistanceY", 1, 1, 1, 2, Q("7 mm")))
sketch10.addConstraint(Sketcher.Constraint("DistanceY", 5, 1, 5, 2, Q("4 mm")))
sketch10.addConstraint(Sketcher.Constraint("DistanceX", 0, 1, 0, 2, Q("3.14 mm")))
sketch10.addConstraint(Sketcher.Constraint("DistanceY", 0, 2, -1, 1, Q("16.5 mm")))
pocket6 = body.newObject("PartDesign::Pocket", "Pocket005")
pocket6.Profile = sketch10
pocket6.Length = 2.3

# Sketch on XY plane
sketch11 = body.newObject("Sketcher::SketchObject", "Sketch010")
sketch11.AttachmentSupport = (doc.getObject("XY_Plane"), [""])
sketch11.MapMode = "FlatFace"
sketch11.AttachmentOffset = App.Placement(App.Vector(0, 0, 25.504901), App.Rotation())
add_polygon(sketch11, [(24.4, -16.5), (27.5, -16.5), (27.5, -9.5), (-27.5, -9.5), (-27.5, -16.5), (-24.4, -16.5), (-24.4, -12.5), (-21.4, -12.5), (-21.4, -16.5), (-19.3, -16.5), (-19.3, -12.5), (-16.3, -12.5), (-16.3, -16.5), (-14.2, -16.5), (-14.2, -12.5), (-11.2, -12.5), (-11.2, -16.5), (-9.1, -16.5), (-9.1, -12.5), (-6.1, -12.5), (-6.1, -16.5), (-4, -16.5), (-4, -12.5), (-1, -12.5), (-1, -16.5), (1, -16.5), (1, -12.5), (4, -12.5), (4, -16.5), (6.1, -16.5), (6.1, -12.5), (9.1, -12.5), (9.1, -16.5), (11.2, -16.5), (11.2, -12.5), (14.2, -12.5), (14.2, -16.5), (16.3, -16.5), (16.3, -12.5), (19.3, -12.5), (19.3, -16.5), (21.4, -16.5), (21.4, -12.5), (24.4, -12.5)])  # lines 0-43
sketch11.addConstraint(Sketcher.Constraint("Horizontal", 0))
sketch11.addConstraint(Sketcher.Constraint("Vertical", 1))
sketch11.addConstraint(Sketcher.Constraint("Horizontal", 2))
sketch11.addConstraint(Sketcher.Constraint("Vertical", 3))
sketch11.addConstraint(Sketcher.Constraint("Horizontal", 4))
sketch11.addConstraint(Sketcher.Constraint("Vertical", 5))
sketch11.addConstraint(Sketcher.Constraint("Horizontal", 6))
sketch11.addConstraint(Sketcher.Constraint("Vertical", 7))
sketch11.addConstraint(Sketcher.Constraint("Horizontal", 8))
sketch11.addConstraint(Sketcher.Constraint("Vertical", 9))
sketch11.addConstraint(Sketcher.Constraint("Horizontal", 10))
sketch11.addConstraint(Sketcher.Constraint("Vertical", 11))
sketch11.addConstraint(Sketcher.Constraint("Horizontal", 12))
sketch11.addConstraint(Sketcher.Constraint("Vertical", 13))
sketch11.addConstraint(Sketcher.Constraint("Horizontal", 14))
sketch11.addConstraint(Sketcher.Constraint("Vertical", 15))
sketch11.addConstraint(Sketcher.Constraint("Horizontal", 16))
sketch11.addConstraint(Sketcher.Constraint("Vertical", 17))
sketch11.addConstraint(Sketcher.Constraint("Horizontal", 18))
sketch11.addConstraint(Sketcher.Constraint("Vertical", 19))
sketch11.addConstraint(Sketcher.Constraint("Horizontal", 20))
sketch11.addConstraint(Sketcher.Constraint("Vertical", 21))
sketch11.addConstraint(Sketcher.Constraint("Horizontal", 22))
sketch11.addConstraint(Sketcher.Constraint("Vertical", 23))
sketch11.addConstraint(Sketcher.Constraint("Horizontal", 24))
sketch11.addConstraint(Sketcher.Constraint("Vertical", 25))
sketch11.addConstraint(Sketcher.Constraint("Horizontal", 26))
sketch11.addConstraint(Sketcher.Constraint("Vertical", 27))
sketch11.addConstraint(Sketcher.Constraint("Horizontal", 28))
sketch11.addConstraint(Sketcher.Constraint("Vertical", 29))
sketch11.addConstraint(Sketcher.Constraint("Horizontal", 30))
sketch11.addConstraint(Sketcher.Constraint("Vertical", 31))
sketch11.addConstraint(Sketcher.Constraint("Horizontal", 32))
sketch11.addConstraint(Sketcher.Constraint("Vertical", 33))
sketch11.addConstraint(Sketcher.Constraint("Horizontal", 34))
sketch11.addConstraint(Sketcher.Constraint("Vertical", 35))
sketch11.addConstraint(Sketcher.Constraint("Horizontal", 36))
sketch11.addConstraint(Sketcher.Constraint("Vertical", 37))
sketch11.addConstraint(Sketcher.Constraint("Horizontal", 38))
sketch11.addConstraint(Sketcher.Constraint("Vertical", 39))
sketch11.addConstraint(Sketcher.Constraint("Horizontal", 40))
sketch11.addConstraint(Sketcher.Constraint("Vertical", 41))
sketch11.addConstraint(Sketcher.Constraint("Horizontal", 42))
sketch11.addConstraint(Sketcher.Constraint("Vertical", 43))
sketch11.addConstraint(Sketcher.Constraint("Symmetric", 0, 2, 3, 2, -2))
sketch11.addConstraint(Sketcher.Constraint("Symmetric", 22, 2, 25, 2, -2))
sketch11.addConstraint(Sketcher.Constraint("Symmetric", 20, 2, 27, 2, -2))
sketch11.addConstraint(Sketcher.Constraint("Symmetric", 18, 2, 29, 2, -2))
sketch11.addConstraint(Sketcher.Constraint("Symmetric", 16, 2, 31, 2, -2))
sketch11.addConstraint(Sketcher.Constraint("Symmetric", 14, 2, 33, 2, -2))
sketch11.addConstraint(Sketcher.Constraint("Symmetric", 12, 2, 35, 2, -2))
sketch11.addConstraint(Sketcher.Constraint("Symmetric", 10, 2, 37, 2, -2))
sketch11.addConstraint(Sketcher.Constraint("Symmetric", 8, 2, 39, 2, -2))
sketch11.addConstraint(Sketcher.Constraint("Symmetric", 6, 2, 41, 2, -2))
sketch11.addConstraint(Sketcher.Constraint("Horizontal", 4, 2, 7, 2))
sketch11.addConstraint(Sketcher.Constraint("Horizontal", 6, 2, 9, 2))
sketch11.addConstraint(Sketcher.Constraint("Horizontal", 8, 2, 11, 2))
sketch11.addConstraint(Sketcher.Constraint("Horizontal", 10, 2, 13, 2))
sketch11.addConstraint(Sketcher.Constraint("Horizontal", 12, 2, 15, 2))
sketch11.addConstraint(Sketcher.Constraint("Horizontal", 14, 2, 17, 2))
sketch11.addConstraint(Sketcher.Constraint("Horizontal", 16, 2, 19, 2))
sketch11.addConstraint(Sketcher.Constraint("Horizontal", 18, 2, 21, 2))
sketch11.addConstraint(Sketcher.Constraint("Horizontal", 20, 2, 23, 2))
sketch11.addConstraint(Sketcher.Constraint("Equal", 0, 4))
sketch11.addConstraint(Sketcher.Constraint("Equal", 6, 10))
sketch11.addConstraint(Sketcher.Constraint("Equal", 8, 12))
sketch11.addConstraint(Sketcher.Constraint("Equal", 10, 14))
sketch11.addConstraint(Sketcher.Constraint("Equal", 12, 16))
sketch11.addConstraint(Sketcher.Constraint("Equal", 14, 18))
sketch11.addConstraint(Sketcher.Constraint("Equal", 16, 20))
sketch11.addConstraint(Sketcher.Constraint("Equal", 18, 22))
sketch11.addConstraint(Sketcher.Constraint("Equal", 20, 24))
sketch11.addConstraint(Sketcher.Constraint("DistanceX", 2, 2, 2, 1, Q("55 mm")))
sketch11.addConstraint(Sketcher.Constraint("DistanceX", 6, 1, 6, 2, Q("3 mm")))
sketch11.addConstraint(Sketcher.Constraint("DistanceY", 1, 1, 1, 2, Q("7 mm")))
sketch11.addConstraint(Sketcher.Constraint("DistanceY", 5, 1, 5, 2, Q("4 mm")))
sketch11.addConstraint(Sketcher.Constraint("DistanceX", 0, 1, 0, 2, Q("3.14 mm")))
sketch11.addConstraint(Sketcher.Constraint("DistanceY", 0, 2, -1, 1, Q("16.5 mm")))
pocket7 = body.newObject("PartDesign::Pocket", "Pocket006")
pocket7.Profile = sketch11
pocket7.Length = 2.3

doc.recompute()
